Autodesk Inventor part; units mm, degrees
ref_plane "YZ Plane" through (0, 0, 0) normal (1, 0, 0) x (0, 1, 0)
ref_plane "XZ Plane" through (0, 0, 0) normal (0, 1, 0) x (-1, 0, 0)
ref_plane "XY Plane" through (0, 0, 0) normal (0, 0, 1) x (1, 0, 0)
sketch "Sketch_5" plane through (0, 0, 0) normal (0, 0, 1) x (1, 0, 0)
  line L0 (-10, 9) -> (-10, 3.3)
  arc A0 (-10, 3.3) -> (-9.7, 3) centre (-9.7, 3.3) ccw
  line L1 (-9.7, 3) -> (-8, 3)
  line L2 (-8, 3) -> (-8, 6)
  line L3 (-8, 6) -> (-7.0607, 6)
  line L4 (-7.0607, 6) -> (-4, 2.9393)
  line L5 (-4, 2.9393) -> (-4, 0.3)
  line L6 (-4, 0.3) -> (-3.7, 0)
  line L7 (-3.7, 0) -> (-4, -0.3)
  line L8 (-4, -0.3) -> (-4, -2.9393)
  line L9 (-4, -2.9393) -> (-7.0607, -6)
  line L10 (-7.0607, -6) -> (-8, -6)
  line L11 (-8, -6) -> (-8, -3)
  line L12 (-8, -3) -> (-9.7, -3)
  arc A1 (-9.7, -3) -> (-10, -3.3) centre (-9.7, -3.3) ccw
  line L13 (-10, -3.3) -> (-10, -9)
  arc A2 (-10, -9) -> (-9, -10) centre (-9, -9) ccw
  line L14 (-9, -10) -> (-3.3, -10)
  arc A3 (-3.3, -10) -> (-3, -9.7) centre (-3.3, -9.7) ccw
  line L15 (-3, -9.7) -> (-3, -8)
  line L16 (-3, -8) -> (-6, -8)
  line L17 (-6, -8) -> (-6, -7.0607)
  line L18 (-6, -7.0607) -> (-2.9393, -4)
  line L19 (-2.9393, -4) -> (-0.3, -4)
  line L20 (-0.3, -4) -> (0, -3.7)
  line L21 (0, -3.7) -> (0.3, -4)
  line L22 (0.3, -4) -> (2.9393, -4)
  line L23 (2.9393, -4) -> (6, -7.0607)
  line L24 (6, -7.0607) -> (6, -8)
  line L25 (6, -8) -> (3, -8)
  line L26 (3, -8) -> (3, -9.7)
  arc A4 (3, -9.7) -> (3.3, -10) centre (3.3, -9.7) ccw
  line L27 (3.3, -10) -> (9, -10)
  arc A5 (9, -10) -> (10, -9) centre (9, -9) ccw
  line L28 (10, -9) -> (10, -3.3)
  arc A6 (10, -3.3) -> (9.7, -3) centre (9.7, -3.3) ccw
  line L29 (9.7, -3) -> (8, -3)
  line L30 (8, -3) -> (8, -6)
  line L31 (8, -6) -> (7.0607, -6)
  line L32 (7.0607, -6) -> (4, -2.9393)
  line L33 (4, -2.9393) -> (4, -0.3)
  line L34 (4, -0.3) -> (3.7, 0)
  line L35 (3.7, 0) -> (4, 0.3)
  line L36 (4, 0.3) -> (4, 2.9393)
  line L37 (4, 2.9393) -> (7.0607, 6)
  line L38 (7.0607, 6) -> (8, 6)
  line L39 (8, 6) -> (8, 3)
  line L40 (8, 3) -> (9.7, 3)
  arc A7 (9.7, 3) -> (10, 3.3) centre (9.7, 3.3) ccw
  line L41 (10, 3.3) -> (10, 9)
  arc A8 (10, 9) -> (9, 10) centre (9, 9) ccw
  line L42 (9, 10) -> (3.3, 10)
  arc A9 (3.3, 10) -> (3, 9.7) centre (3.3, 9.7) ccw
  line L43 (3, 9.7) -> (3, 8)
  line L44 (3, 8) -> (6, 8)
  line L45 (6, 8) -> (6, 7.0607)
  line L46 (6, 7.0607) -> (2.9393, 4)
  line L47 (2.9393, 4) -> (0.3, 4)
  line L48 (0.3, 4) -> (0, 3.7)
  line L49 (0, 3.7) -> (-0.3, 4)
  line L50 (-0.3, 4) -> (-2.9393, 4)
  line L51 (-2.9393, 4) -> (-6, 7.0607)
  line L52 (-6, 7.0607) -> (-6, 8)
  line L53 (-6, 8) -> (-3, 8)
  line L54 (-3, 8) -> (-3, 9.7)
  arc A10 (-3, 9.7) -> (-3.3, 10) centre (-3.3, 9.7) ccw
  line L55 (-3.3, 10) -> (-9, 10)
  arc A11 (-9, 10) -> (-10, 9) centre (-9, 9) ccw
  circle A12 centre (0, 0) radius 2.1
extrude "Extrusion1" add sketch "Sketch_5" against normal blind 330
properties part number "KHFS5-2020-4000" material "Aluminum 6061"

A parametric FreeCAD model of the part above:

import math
import FreeCAD as App
import Part
import Sketcher
from FreeCAD import Vector

doc = App.newDocument("Part")
body = doc.addObject("PartDesign::Body", "Body")

sketch1 = body.newObject("Sketcher::SketchObject", "Sketch")
sketch1.AttachmentSupport = (doc.getObject("XY_Plane"), [""])
sketch1.MapMode = "FlatFace"
sketch1.addGeometry([
    Part.ArcOfCircle(Part.Circle(Vector(-9, 9, 0), Vector(0, 0, 1), 1), math.radians(90), math.radians(180)),
    Part.LineSegment(Vector(-10, 9, 0), Vector(-10, 3.3, 0)),
    Part.ArcOfCircle(Part.Circle(Vector(-9.7, 3.3, 0), Vector(0, 0, 1), 0.3), math.radians(180), math.radians(270)),
    Part.LineSegment(Vector(-9.7, 3, 0), Vector(-8, 3, 0)),
    Part.LineSegment(Vector(-8, 3, 0), Vector(-8, 6, 0)),
    Part.LineSegment(Vector(-8, 6, 0), Vector(-7.06, 6, 0)),
    Part.LineSegment(Vector(-7.06, 6, 0), Vector(-4, 2.94, 0)),
    Part.LineSegment(Vector(-4, 2.94, 0), Vector(-4, 0.3, 0)),
    Part.LineSegment(Vector(-4, 0.3, 0), Vector(-3.7, 0, 0)),
    Part.LineSegment(Vector(-3.7, 0, 0), Vector(-4, -0.3, 0)),
    Part.LineSegment(Vector(-4, -0.3, 0), Vector(-4, -2.94, 0)),
    Part.LineSegment(Vector(-4, -2.94, 0), Vector(-7.06, -6, 0)),
    Part.LineSegment(Vector(-7.06, -6, 0), Vector(-8, -6, 0)),
    Part.LineSegment(Vector(-8, -6, 0), Vector(-8, -3, 0)),
    Part.LineSegment(Vector(-8, -3, 0), Vector(-9.7, -3, 0)),
    Part.ArcOfCircle(Part.Circle(Vector(-9.7, -3.3, 0), Vector(0, 0, 1), 0.3), math.radians(90), math.radians(180)),
    Part.LineSegment(Vector(-10, -3.3, 0), Vector(-10, -9, 0)),
    Part.ArcOfCircle(Part.Circle(Vector(-9, -9, 0), Vector(0, 0, 1), 1), math.radians(180), math.radians(270)),
    Part.LineSegment(Vector(-9, -10, 0), Vector(-3.3, -10, 0)),
    Part.ArcOfCircle(Part.Circle(Vector(-3.3, -9.7, 0), Vector(0, 0, 1), 0.3), math.radians(-90), math.radians(0)),
    Part.LineSegment(Vector(-3, -9.7, 0), Vector(-3, -8, 0)),
    Part.LineSegment(Vector(-3, -8, 0), Vector(-6, -8, 0)),
    Part.LineSegment(Vector(-6, -8, 0), Vector(-6, -7.06, 0)),
    Part.LineSegment(Vector(-6, -7.06, 0), Vector(-2.94, -4, 0)),
    Part.LineSegment(Vector(-2.94, -4, 0), Vector(-0.3, -4, 0)),
    Part.LineSegment(Vector(-0.3, -4, 0), Vector(0, -3.7, 0)),
    Part.LineSegment(Vector(0, -3.7, 0), Vector(0.3, -4, 0)),
    Part.LineSegment(Vector(0.3, -4, 0), Vector(2.94, -4, 0)),
    Part.LineSegment(Vector(2.94, -4, 0), Vector(6, -7.06, 0)),
    Part.LineSegment(Vector(6, -7.06, 0), Vector(6, -8, 0)),
    Part.LineSegment(Vector(6, -8, 0), Vector(3, -8, 0)),
    Part.LineSegment(Vector(3, -8, 0), Vector(3, -9.7, 0)),
    Part.ArcOfCircle(Part.Circle(Vector(3.3, -9.7, 0), Vector(0, 0, 1), 0.3), math.radians(180), math.radians(270)),
    Part.LineSegment(Vector(3.3, -10, 0), Vector(9, -10, 0)),
    Part.ArcOfCircle(Part.Circle(Vector(9, -9, 0), Vector(0, 0, 1), 1), math.radians(-90), math.radians(0)),
    Part.LineSegment(Vector(10, -9, 0), Vector(10, -3.3, 0)),
    Part.ArcOfCircle(Part.Circle(Vector(9.7, -3.3, 0), Vector(0, 0, 1), 0.3), math.radians(0), math.radians(90)),
    Part.LineSegment(Vector(9.7, -3, 0), Vector(8, -3, 0)),
    Part.LineSegment(Vector(8, -3, 0), Vector(8, -6, 0)),
    Part.LineSegment(Vector(8, -6, 0), Vector(7.06, -6, 0)),
    Part.LineSegment(Vector(7.06, -6, 0), Vector(4, -2.94, 0)),
    Part.LineSegment(Vector(4, -2.94, 0), Vector(4, -0.3, 0)),
    Part.LineSegment(Vector(4, -0.3, 0), Vector(3.7, 0, 0)),
    Part.LineSegment(Vector(3.7, 0, 0), Vector(4, 0.3, 0)),
    Part.LineSegment(Vector(4, 0.3, 0), Vector(4, 2.94, 0)),
    Part.LineSegment(Vector(4, 2.94, 0), Vector(7.06, 6, 0)),
    Part.LineSegment(Vector(7.06, 6, 0), Vector(8, 6, 0)),
    Part.LineSegment(Vector(8, 6, 0), Vector(8, 3, 0)),
    Part.LineSegment(Vector(8, 3, 0), Vector(9.7, 3, 0)),
    Part.ArcOfCircle(Part.Circle(Vector(9.7, 3.3, 0), Vector(0, 0, 1), 0.3), math.radians(-90), math.radians(0)),
    Part.LineSegment(Vector(10, 3.3, 0), Vector(10, 9, 0)),
    Part.ArcOfCircle(Part.Circle(Vector(9, 9, 0), Vector(0, 0, 1), 1), math.radians(0), math.radians(90)),
    Part.LineSegment(Vector(9, 10, 0), Vector(3.3, 10, 0)),
    Part.ArcOfCircle(Part.Circle(Vector(3.3, 9.7, 0), Vector(0, 0, 1), 0.3), math.radians(90), math.radians(180)),
    Part.LineSegment(Vector(3, 9.7, 0), Vector(3, 8, 0)),
    Part.LineSegment(Vector(3, 8, 0), Vector(6, 8, 0)),
    Part.LineSegment(Vector(6, 8, 0), Vector(6, 7.06, 0)),
    Part.LineSegment(Vector(6, 7.06, 0), Vector(2.94, 4, 0)),
    Part.LineSegment(Vector(2.94, 4, 0), Vector(0.3, 4, 0)),
    Part.LineSegment(Vector(0.3, 4, 0), Vector(0, 3.7, 0)),
    Part.LineSegment(Vector(0, 3.7, 0), Vector(-0.3, 4, 0)),
    Part.LineSegment(Vector(-0.3, 4, 0), Vector(-2.94, 4, 0)),
    Part.LineSegment(Vector(-2.94, 4, 0), Vector(-6, 7.06, 0)),
    Part.LineSegment(Vector(-6, 7.06, 0), Vector(-6, 8, 0)),
    Part.LineSegment(Vector(-6, 8, 0), Vector(-3, 8, 0)),
    Part.LineSegment(Vector(-3, 8, 0), Vector(-3, 9.7, 0)),
    Part.ArcOfCircle(Part.Circle(Vector(-3.3, 9.7, 0), Vector(0, 0, 1), 0.3), math.radians(0), math.radians(90)),
    Part.LineSegment(Vector(-3.3, 10, 0), Vector(-9, 10, 0)),
    Part.Circle(Vector(0, 0, 0), Vector(0, 0, 1), 2.1),
], False)
sketch1.addConstraint([
    Sketcher.Constraint("Tangent", 0, 2, 1, 1),
    Sketcher.Constraint("Tangent", 1, 2, 2, 1),
    Sketcher.Constraint("Tangent", 2, 2, 3, 1),
    Sketcher.Constraint("Coincident", 3, 2, 4, 1),
    Sketcher.Constraint("Coincident", 4, 2, 5, 1),
    Sketcher.Constraint("Coincident", 5, 2, 6, 1),
    Sketcher.Constraint("Coincident", 6, 2, 7, 1),
    Sketcher.Constraint("Coincident", 7, 2, 8, 1),
    Sketcher.Constraint("Coincident", 8, 2, 9, 1),
    Sketcher.Constraint("Coincident", 9, 2, 10, 1),
    Sketcher.Constraint("Coincident", 10, 2, 11, 1),
    Sketcher.Constraint("Coincident", 11, 2, 12, 1),
    Sketcher.Constraint("Coincident", 12, 2, 13, 1),
    Sketcher.Constraint("Coincident", 13, 2, 14, 1),
    Sketcher.Constraint("Tangent", 14, 2, 15, 1),
    Sketcher.Constraint("Tangent", 15, 2, 16, 1),
    Sketcher.Constraint("Tangent", 16, 2, 17, 1),
    Sketcher.Constraint("Tangent", 17, 2, 18, 1),
    Sketcher.Constraint("Tangent", 18, 2, 19, 1),
    Sketcher.Constraint("Tangent", 19, 2, 20, 1),
    Sketcher.Constraint("Coincident", 20, 2, 21, 1),
    Sketcher.Constraint("Coincident", 21, 2, 22, 1),
    Sketcher.Constraint("Coincident", 22, 2, 23, 1),
    Sketcher.Constraint("Coincident", 23, 2, 24, 1),
    Sketcher.Constraint("Coincident", 24, 2, 25, 1),
    Sketcher.Constraint("Coincident", 25, 2, 26, 1),
    Sketcher.Constraint("Coincident", 26, 2, 27, 1),
    Sketcher.Constraint("Coincident", 27, 2, 28, 1),
    Sketcher.Constraint("Coincident", 28, 2, 29, 1),
    Sketcher.Constraint("Coincident", 29, 2, 30, 1),
    Sketcher.Constraint("Coincident", 30, 2, 31, 1),
    Sketcher.Constraint("Tangent", 31, 2, 32, 1),
    Sketcher.Constraint("Tangent", 32, 2, 33, 1),
    Sketcher.Constraint("Tangent", 33, 2, 34, 1),
    Sketcher.Constraint("Tangent", 34, 2, 35, 1),
    Sketcher.Constraint("Tangent", 35, 2, 36, 1),
    Sketcher.Constraint("Tangent", 36, 2, 37, 1),
    Sketcher.Constraint("Coincident", 37, 2, 38, 1),
    Sketcher.Constraint("Coincident", 38, 2, 39, 1),
    Sketcher.Constraint("Coincident", 39, 2, 40, 1),
    Sketcher.Constraint("Coincident", 40, 2, 41, 1),
    Sketcher.Constraint("Coincident", 41, 2, 42, 1),
    Sketcher.Constraint("Coincident", 42, 2, 43, 1),
    Sketcher.Constraint("Coincident", 43, 2, 44, 1),
    Sketcher.Constraint("Coincident", 44, 2, 45, 1),
    Sketcher.Constraint("Coincident", 45, 2, 46, 1),
    Sketcher.Constraint("Coincident", 46, 2, 47, 1),
    Sketcher.Constraint("Coincident", 47, 2, 48, 1),
    Sketcher.Constraint("Tangent", 48, 2, 49, 1),
    Sketcher.Constraint("Tangent", 49, 2, 50, 1),
    Sketcher.Constraint("Tangent", 50, 2, 51, 1),
    Sketcher.Constraint("Tangent", 51, 2, 52, 1),
    Sketcher.Constraint("Tangent", 52, 2, 53, 1),
    Sketcher.Constraint("Tangent", 53, 2, 54, 1),
    Sketcher.Constraint("Coincident", 54, 2, 55, 1),
    Sketcher.Constraint("Coincident", 55, 2, 56, 1),
    Sketcher.Constraint("Coincident", 56, 2, 57, 1),
    Sketcher.Constraint("Coincident", 57, 2, 58, 1),
    Sketcher.Constraint("Coincident", 58, 2, 59, 1),
    Sketcher.Constraint("Coincident", 59, 2, 60, 1),
    Sketcher.Constraint("Coincident", 60, 2, 61, 1),
    Sketcher.Constraint("Coincident", 61, 2, 62, 1),
    Sketcher.Constraint("Coincident", 62, 2, 63, 1),
    Sketcher.Constraint("Coincident", 63, 2, 64, 1),
    Sketcher.Constraint("Coincident", 64, 2, 65, 1),
    Sketcher.Constraint("Tangent", 65, 2, 66, 1),
    Sketcher.Constraint("Tangent", 66, 2, 67, 1),
    Sketcher.Constraint("Tangent", 67, 2, 0, 1),
    Sketcher.Constraint("Vertical", 1),
    Sketcher.Constraint("Horizontal", 3),
    Sketcher.Constraint("Vertical", 4),
    Sketcher.Constraint("Horizontal", 5),
    Sketcher.Constraint("Vertical", 7),
    Sketcher.Constraint("Vertical", 10),
    Sketcher.Constraint("Horizontal", 12),
    Sketcher.Constraint("Vertical", 13),
    Sketcher.Constraint("Horizontal", 14),
    Sketcher.Constraint("Vertical", 16),
    Sketcher.Constraint("Horizontal", 18),
    Sketcher.Constraint("Vertical", 20),
    Sketcher.Constraint("Horizontal", 21),
    Sketcher.Constraint("Vertical", 22),
    Sketcher.Constraint("Horizontal", 24),
    Sketcher.Constraint("Horizontal", 27),
    Sketcher.Constraint("Vertical", 29),
    Sketcher.Constraint("Horizontal", 30),
    Sketcher.Constraint("Vertical", 31),
    Sketcher.Constraint("Horizontal", 33),
    Sketcher.Constraint("Vertical", 35),
    Sketcher.Constraint("Horizontal", 37),
    Sketcher.Constraint("Vertical", 38),
    Sketcher.Constraint("Horizontal", 39),
    Sketcher.Constraint("Vertical", 41),
    Sketcher.Constraint("Vertical", 44),
    Sketcher.Constraint("Horizontal", 46),
    Sketcher.Constraint("Vertical", 47),
    Sketcher.Constraint("Horizontal", 48),
    Sketcher.Constraint("Vertical", 50),
    Sketcher.Constraint("Horizontal", 52),
    Sketcher.Constraint("Vertical", 54),
    Sketcher.Constraint("Horizontal", 55),
    Sketcher.Constraint("Vertical", 56),
    Sketcher.Constraint("Horizontal", 58),
    Sketcher.Constraint("Horizontal", 61),
    Sketcher.Constraint("Vertical", 63),
    Sketcher.Constraint("Horizontal", 64),
    Sketcher.Constraint("Vertical", 65),
    Sketcher.Constraint("Horizontal", 67),
    Sketcher.Constraint("Coincident", 68, 3, -1, 1),
    Sketcher.Constraint("Equal", 2, 15),
    Sketcher.Constraint("Equal", 0, 17),
    Sketcher.Constraint("Equal", 15, 19),
    Sketcher.Constraint("Equal", 19, 32),
    Sketcher.Constraint("Equal", 17, 34),
    Sketcher.Constraint("Equal", 32, 36),
    Sketcher.Constraint("Equal", 36, 49),
    Sketcher.Constraint("Equal", 34, 51),
    Sketcher.Constraint("Equal", 49, 53),
    Sketcher.Constraint("Equal", 53, 66),
    Sketcher.Constraint("Symmetric", 0, 3, 34, 3, -1, 1),
    Sketcher.Constraint("Symmetric", 15, 3, 49, 3, -1, 1),
    Sketcher.Constraint("Symmetric", 19, 3, 53, 3, -1, 1),
    Sketcher.Constraint("Symmetric", 3, 2, 37, 2, -1, 1),
    Sketcher.Constraint("Symmetric", 5, 2, 39, 2, -1, 1),
    Sketcher.Constraint("Symmetric", 6, 2, 40, 2, -1, 1),
    Sketcher.Constraint("Symmetric", 8, 2, 42, 2, -1, 1),
    Sketcher.Constraint("Symmetric", 9, 2, 43, 2, -1, 1),
    Sketcher.Constraint("Symmetric", 11, 2, 45, 2, -1, 1),
    Sketcher.Constraint("Symmetric", 21, 2, 55, 2, -1, 1),
    Sketcher.Constraint("Symmetric", 23, 2, 57, 2, -1, 1),
    Sketcher.Constraint("Symmetric", 25, 2, 59, 2, -1, 1),
    Sketcher.Constraint("Symmetric", 26, 2, 60, 2, -1, 1),
    Sketcher.Constraint("Symmetric", 28, 2, 62, 2, -1, 1),
    Sketcher.Constraint("Symmetric", 30, 2, 64, 2, -1, 1),
    Sketcher.Constraint("Symmetric", 19, 3, 32, 3, -2),
    Sketcher.Constraint("Symmetric", 15, 3, 36, 3, -2),
    Sketcher.Constraint("Symmetric", 24, 2, 26, 2, -2),
    Sketcher.Constraint("Symmetric", 22, 2, 28, 2, -2),
    Sketcher.Constraint("Symmetric", 12, 2, 38, 2, -2),
    Sketcher.Constraint("Symmetric", 10, 2, 40, 2, -2),
    Sketcher.Constraint("PointOnObject", 8, 2, -1),
    Sketcher.Constraint("PointOnObject", 25, 2, -2),
    Sketcher.Constraint("Parallel", 6, 8),
    Sketcher.Constraint("Perpendicular", 8, 9),
    Sketcher.Constraint("Parallel", 9, 11),
    Sketcher.Constraint("Parallel", 11, 23),
    Sketcher.Constraint("Parallel", 23, 25),
    Sketcher.Constraint("Perpendicular", 25, 26),
    Sketcher.Constraint("Parallel", 26, 28),
    Sketcher.Constraint("Parallel", 40, 42),
    Sketcher.Constraint("Parallel", 43, 45),
    Sketcher.Constraint("Parallel", 45, 57),
    Sketcher.Constraint("Parallel", 57, 59),
    Sketcher.Constraint("Parallel", 60, 62),
    Sketcher.Constraint("Horizontal", 21, 2, 29, 2),
    Sketcher.Constraint("Vertical", 38, 2, 46, 2),
    Sketcher.Constraint("Equal", 67, 1),
    Sketcher.Constraint("Equal", 64, 4),
    Sketcher.Constraint("Equal", 61, 7),
    Sketcher.Constraint("Equal", 48, 20),
    Sketcher.Constraint("Equal", 46, 22),
    Sketcher.Constraint("Equal", 11, 23),
    Sketcher.Constraint("Equal", 9, 25),
    Sketcher.Constraint("Radius", 0, 1.0),
    Sketcher.Constraint("Diameter", 68, 4.2),
    Sketcher.Constraint("Radius", 2, 0.3),
    Sketcher.Constraint("DistanceX", 21, 2, 21, 1, 3.0),
    Sketcher.Constraint("DistanceX", 3, 1, 3, 2, 1.7),
    Sketcher.Constraint("DistanceX", 18, 1, 18, 2, 5.7),
    Sketcher.Constraint("DistanceX", 0, 3, -1, 1, 9.0),
    Sketcher.Constraint("DistanceX", 6, 2, -1, 1, 4.0),
    Sketcher.Constraint("DistanceY", -1, 1, 7, 2, 0.3),
    Sketcher.Constraint("DistanceX", 5, 1, 5, 2, 0.9393),
])
pad1 = body.newObject("PartDesign::Pad", "Pad")
pad1.Profile = sketch1
pad1.Length = 330
pad1.Reversed = True

doc.recompute()
